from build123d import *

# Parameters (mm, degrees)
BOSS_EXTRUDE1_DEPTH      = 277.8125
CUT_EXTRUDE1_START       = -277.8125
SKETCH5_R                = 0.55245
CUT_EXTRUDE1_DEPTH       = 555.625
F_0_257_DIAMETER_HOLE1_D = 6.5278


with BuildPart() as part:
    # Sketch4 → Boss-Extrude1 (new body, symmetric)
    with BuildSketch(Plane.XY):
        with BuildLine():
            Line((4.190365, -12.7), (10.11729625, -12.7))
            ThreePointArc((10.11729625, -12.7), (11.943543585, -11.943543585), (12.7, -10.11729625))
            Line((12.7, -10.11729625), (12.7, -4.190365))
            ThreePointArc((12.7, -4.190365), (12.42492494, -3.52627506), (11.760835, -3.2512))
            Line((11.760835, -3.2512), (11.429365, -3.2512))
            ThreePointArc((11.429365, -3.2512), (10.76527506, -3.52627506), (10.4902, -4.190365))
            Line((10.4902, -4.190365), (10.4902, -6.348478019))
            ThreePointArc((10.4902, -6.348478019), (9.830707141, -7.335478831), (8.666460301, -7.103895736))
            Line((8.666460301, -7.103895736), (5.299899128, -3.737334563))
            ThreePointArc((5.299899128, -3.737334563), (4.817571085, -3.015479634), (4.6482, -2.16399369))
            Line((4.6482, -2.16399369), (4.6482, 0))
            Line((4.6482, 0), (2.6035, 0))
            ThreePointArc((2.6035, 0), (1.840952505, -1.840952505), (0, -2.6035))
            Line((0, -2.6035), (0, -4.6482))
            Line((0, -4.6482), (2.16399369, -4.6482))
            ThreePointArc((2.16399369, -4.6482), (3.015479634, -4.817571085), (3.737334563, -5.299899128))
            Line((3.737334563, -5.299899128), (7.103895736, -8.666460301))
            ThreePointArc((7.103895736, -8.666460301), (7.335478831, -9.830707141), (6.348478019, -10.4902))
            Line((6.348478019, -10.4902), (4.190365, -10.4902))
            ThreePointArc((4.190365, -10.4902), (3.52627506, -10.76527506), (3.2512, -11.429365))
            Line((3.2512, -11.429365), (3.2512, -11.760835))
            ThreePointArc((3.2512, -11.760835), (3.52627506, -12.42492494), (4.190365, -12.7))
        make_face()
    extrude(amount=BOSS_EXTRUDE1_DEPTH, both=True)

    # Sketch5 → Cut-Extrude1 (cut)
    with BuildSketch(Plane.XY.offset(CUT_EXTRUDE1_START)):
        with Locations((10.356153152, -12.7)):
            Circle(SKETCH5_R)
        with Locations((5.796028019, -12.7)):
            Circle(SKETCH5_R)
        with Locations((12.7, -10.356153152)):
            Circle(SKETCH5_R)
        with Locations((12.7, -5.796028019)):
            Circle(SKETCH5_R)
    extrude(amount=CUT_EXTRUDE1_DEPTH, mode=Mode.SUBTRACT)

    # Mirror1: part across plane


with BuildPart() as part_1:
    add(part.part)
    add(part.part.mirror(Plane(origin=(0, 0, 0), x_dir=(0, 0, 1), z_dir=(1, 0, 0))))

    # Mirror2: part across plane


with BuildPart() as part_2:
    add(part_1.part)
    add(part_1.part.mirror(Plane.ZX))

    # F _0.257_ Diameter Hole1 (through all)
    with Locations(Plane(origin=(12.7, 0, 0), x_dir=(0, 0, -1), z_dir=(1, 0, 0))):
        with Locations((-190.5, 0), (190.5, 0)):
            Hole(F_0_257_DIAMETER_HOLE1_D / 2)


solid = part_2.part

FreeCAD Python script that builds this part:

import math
import FreeCAD as App
import Part
import Sketcher
from FreeCAD import Vector
Q = App.Units.Quantity

doc = App.newDocument("Part")
body = doc.addObject("PartDesign::Body", "Body")

# Sketch on XY plane
sketch1 = body.newObject("Sketcher::SketchObject", "Sketch")
sketch1.AttachmentSupport = (doc.getObject("XY_Plane"), [""])
sketch1.MapMode = "FlatFace"
sketch1.addGeometry(Part.LineSegment(Vector(4.19, -12.7, 0), Vector(10.12, -12.7, 0)), False)
sketch1.addGeometry(Part.ArcOfCircle(Part.Circle(Vector(10.12, -10.12, 0), Vector(0, 0, 1), 2.58), math.radians(-90), math.radians(0)), False)
sketch1.addGeometry(Part.LineSegment(Vector(12.7, -10.12, 0), Vector(12.7, -4.19, 0)), False)
sketch1.addGeometry(Part.ArcOfCircle(Part.Circle(Vector(11.76, -4.19, 0), Vector(0, 0, 1), 0.94), math.radians(0), math.radians(90)), False)
sketch1.addGeometry(Part.LineSegment(Vector(11.76, -3.25, 0), Vector(11.43, -3.25, 0)), False)
sketch1.addGeometry(Part.ArcOfCircle(Part.Circle(Vector(11.43, -4.19, 0), Vector(0, 0, 1), 0.94), math.radians(90), math.radians(180)), False)
sketch1.addGeometry(Part.LineSegment(Vector(10.49, -4.19, 0), Vector(10.49, -6.35, 0)), False)
sketch1.addGeometry(Part.ArcOfCircle(Part.Circle(Vector(9.42, -6.35, 0), Vector(0, 0, 1), 1.07), math.radians(-135), math.radians(0)), False)
sketch1.addGeometry(Part.LineSegment(Vector(8.67, -7.1, 0), Vector(5.3, -3.74, 0)), False)
sketch1.addGeometry(Part.ArcOfCircle(Part.Circle(Vector(6.87, -2.16, 0), Vector(0, 0, 1), 2.23), math.radians(-180), math.radians(-135)), False)
sketch1.addGeometry(Part.LineSegment(Vector(4.65, -2.16, 0), Vector(4.65, 0, 0)), False)
sketch1.addGeometry(Part.LineSegment(Vector(4.65, 0, 0), Vector(2.6, 0, 0)), False)
sketch1.addGeometry(Part.ArcOfCircle(Part.Circle(Vector(0, 0, 0), Vector(0, 0, 1), 2.6), math.radians(-90), math.radians(0)), False)
sketch1.addGeometry(Part.LineSegment(Vector(0, -2.6, 0), Vector(0, -4.65, 0)), False)
sketch1.addGeometry(Part.LineSegment(Vector(0, -4.65, 0), Vector(2.16, -4.65, 0)), False)
sketch1.addGeometry(Part.ArcOfCircle(Part.Circle(Vector(2.16, -6.87, 0), Vector(0, 0, 1), 2.23), math.radians(45), math.radians(90)), False)
sketch1.addGeometry(Part.LineSegment(Vector(3.74, -5.3, 0), Vector(7.1, -8.67, 0)), False)
sketch1.addGeometry(Part.ArcOfCircle(Part.Circle(Vector(6.35, -9.42, 0), Vector(0, 0, 1), 1.07), math.radians(-90), math.radians(45)), False)
sketch1.addGeometry(Part.LineSegment(Vector(6.35, -10.49, 0), Vector(4.19, -10.49, 0)), False)
sketch1.addGeometry(Part.ArcOfCircle(Part.Circle(Vector(4.19, -11.43, 0), Vector(0, 0, 1), 0.94), math.radians(90), math.radians(180)), False)
sketch1.addGeometry(Part.LineSegment(Vector(3.25, -11.43, 0), Vector(3.25, -11.76, 0)), False)
sketch1.addGeometry(Part.ArcOfCircle(Part.Circle(Vector(4.19, -11.76, 0), Vector(0, 0, 1), 0.94), math.radians(-180), math.radians(-90)), False)
sketch1.addConstraint(Sketcher.Constraint("Tangent", 0, 2, 1, 1))
sketch1.addConstraint(Sketcher.Constraint("Tangent", 1, 2, 2, 1))
sketch1.addConstraint(Sketcher.Constraint("Tangent", 2, 2, 3, 1))
sketch1.addConstraint(Sketcher.Constraint("Tangent", 3, 2, 4, 1))
sketch1.addConstraint(Sketcher.Constraint("Tangent", 4, 2, 5, 1))
sketch1.addConstraint(Sketcher.Constraint("Tangent", 5, 2, 6, 1))
sketch1.addConstraint(Sketcher.Constraint("Tangent", 6, 2, 7, 2))
sketch1.addConstraint(Sketcher.Constraint("Tangent", 7, 1, 8, 1))
sketch1.addConstraint(Sketcher.Constraint("Tangent", 8, 2, 9, 2))
sketch1.addConstraint(Sketcher.Constraint("Tangent", 9, 1, 10, 1))
sketch1.addConstraint(Sketcher.Constraint("Coincident", 10, 2, 11, 1))
sketch1.addConstraint(Sketcher.Constraint("Coincident", 11, 2, 12, 2))
sketch1.addConstraint(Sketcher.Constraint("Coincident", 12, 1, 13, 1))
sketch1.addConstraint(Sketcher.Constraint("Coincident", 13, 2, 14, 1))
sketch1.addConstraint(Sketcher.Constraint("Tangent", 14, 2, 15, 2))
sketch1.addConstraint(Sketcher.Constraint("Tangent", 15, 1, 16, 1))
sketch1.addConstraint(Sketcher.Constraint("Tangent", 16, 2, 17, 2))
sketch1.addConstraint(Sketcher.Constraint("Tangent", 17, 1, 18, 1))
sketch1.addConstraint(Sketcher.Constraint("Tangent", 18, 2, 19, 1))
sketch1.addConstraint(Sketcher.Constraint("Tangent", 19, 2, 20, 1))
sketch1.addConstraint(Sketcher.Constraint("Tangent", 20, 2, 21, 1))
sketch1.addConstraint(Sketcher.Constraint("Tangent", 21, 2, 0, 1))
sketch1.addConstraint(Sketcher.Constraint("Horizontal", 0))
sketch1.addConstraint(Sketcher.Constraint("Vertical", 2))
sketch1.addConstraint(Sketcher.Constraint("Horizontal", 4))
sketch1.addConstraint(Sketcher.Constraint("Vertical", 6))
sketch1.addConstraint(Sketcher.Constraint("Vertical", 10))
sketch1.addConstraint(Sketcher.Constraint("Horizontal", 11))
sketch1.addConstraint(Sketcher.Constraint("Vertical", 13))
sketch1.addConstraint(Sketcher.Constraint("Horizontal", 14))
sketch1.addConstraint(Sketcher.Constraint("Horizontal", 18))
sketch1.addConstraint(Sketcher.Constraint("Vertical", 20))
sketch1.addConstraint(Sketcher.Constraint("Coincident", 12, 3, -1, 1))
sketch1.addConstraint(Sketcher.Constraint("Equal", 3, 5))
sketch1.addConstraint(Sketcher.Constraint("Equal", 9, 15))
sketch1.addConstraint(Sketcher.Constraint("Equal", 7, 17))
sketch1.addConstraint(Sketcher.Constraint("Equal", 5, 19))
sketch1.addConstraint(Sketcher.Constraint("Equal", 19, 21))
sketch1.addConstraint(Sketcher.Constraint("PointOnObject", 10, 2, -1))
sketch1.addConstraint(Sketcher.Constraint("PointOnObject", 12, 1, -2))
sketch1.addConstraint(Sketcher.Constraint("Parallel", 8, 16))
sketch1.addConstraint(Sketcher.Constraint("Equal", 0, 2))
sketch1.addConstraint(Sketcher.Constraint("Equal", 18, 6))
sketch1.addConstraint(Sketcher.Constraint("Equal", 14, 10))
sketch1.addConstraint(Sketcher.Constraint("Equal", 11, 13))
sketch1.addConstraint(Sketcher.Constraint("Equal", 4, 20))
sketch1.addConstraint(Sketcher.Constraint("Equal", 8, 16))
sketch1.addConstraint(Sketcher.Constraint("DistanceY", 0, 2, -1, 1, Q("0.5 in")))
sketch1.addConstraint(Sketcher.Constraint("Radius", 9, Q("0.0876 in")))
sketch1.addConstraint(Sketcher.Constraint("Radius", 12, Q("0.1025 in")))
sketch1.addConstraint(Sketcher.Constraint("DistanceX", 9, 1, 5, 2, Q("0.23 in")))
sketch1.addConstraint(Sketcher.Constraint("DistanceX", 11, 2, 11, 1, Q("0.0805 in")))
sketch1.addConstraint(Sketcher.Constraint("DistanceY", 3, 2, -1, 1, Q("0.128 in")))
sketch1.addConstraint(Sketcher.Constraint("Radius", 7, Q("1.068322 mm")))
sketch1.addConstraint(Sketcher.Constraint("DistanceX", 17, 3, 7, 3, Q("0.121 in")))
sketch1.addConstraint(Sketcher.Constraint("Radius", 1, Q("2.582704 mm")))
sketch1.addConstraint(Sketcher.Constraint("Radius", 3, Q("0.939165 mm")))
pad1 = body.newObject("PartDesign::Pad", "Pad")
pad1.Profile = sketch1
pad1.Length = Q("21.875 in")
pad1.Midplane = True

# Sketch on XY plane
sketch2 = body.newObject("Sketcher::SketchObject", "Sketch001")
sketch2.AttachmentSupport = (doc.getObject("XY_Plane"), [""])
sketch2.MapMode = "FlatFace"
sketch2.AttachmentOffset = App.Placement(Vector(0, 0, -10.9375 * 25.4), App.Rotation())
sketch2.addGeometry(Part.Circle(Vector(10.4, -12.7, 0), Vector(0, 0, 1), 0.6), False)
sketch2.addGeometry(Part.Circle(Vector(5.8, -12.7, 0), Vector(0, 0, 1), 0.6), False)
sketch2.addGeometry(Part.Circle(Vector(12.7, -10.4, 0), Vector(0, 0, 1), 0.6), False)
sketch2.addGeometry(Part.Circle(Vector(12.7, -5.8, 0), Vector(0, 0, 1), 0.6), False)
sketch2.addConstraint(Sketcher.Constraint("Equal", 0, 1))
sketch2.addConstraint(Sketcher.Constraint("Equal", 1, 2))
sketch2.addConstraint(Sketcher.Constraint("Equal", 2, 3))
sketch2.addConstraint(Sketcher.Constraint("Horizontal", 0, 3, 1, 3))
sketch2.addConstraint(Sketcher.Constraint("Vertical", 2, 3, 3, 3))
sketch2.addConstraint(Sketcher.Constraint("Diameter", 0, Q("0.0435 in")))
sketch2.addConstraint(Sketcher.Constraint("DistanceY", 0, 3, -1, 1, Q("0.5 in")))
sketch2.addConstraint(Sketcher.Constraint("DistanceX", -1, 1, 2, 3, Q("0.5 in")))
sketch2.addConstraint(Sketcher.Constraint("DistanceX", -1, 1, 1, 3, Q("5.796028 mm")))
sketch2.addConstraint(Sketcher.Constraint("DistanceY", 3, 3, -1, 1, Q("5.796028 mm")))
sketch2.addConstraint(Sketcher.Constraint("DistanceX", -1, 1, 0, 3, Q("10.356153 mm")))
sketch2.addConstraint(Sketcher.Constraint("DistanceY", 2, 3, -1, 1, Q("10.356153 mm")))
pocket1 = body.newObject("PartDesign::Pocket", "Pocket")
pocket1.Profile = sketch2
pocket1.Length = Q("21.875 in")
pocket1.Reversed = True
body2 = doc.addObject("PartDesign::Body", "Body001")
doc.recompute()

body2.BaseFeature = body
doc.recompute()

mirroring = doc.addObject("Part::Mirroring", "Mirroring")
mirroring.Source = body
mirroring.Base = Vector(0, 0, 0)
mirroring.Normal = Vector(1, 0, 0)
body3 = doc.addObject("PartDesign::Body", "Body002")
body3.BaseFeature = mirroring
boolean = body2.newObject("PartDesign::Boolean", "Boolean")
boolean.Type = "Fuse"
boolean.addObjects([body3])
doc.recompute()
body4 = doc.addObject("PartDesign::Body", "Body003")
doc.recompute()

body4.BaseFeature = body2
doc.recompute()

mirroring2 = doc.addObject("Part::Mirroring", "Mirroring001")
mirroring2.Source = body2
mirroring2.Base = Vector(0, 0, 0)
mirroring2.Normal = Vector(0, 1, 0)
body5 = doc.addObject("PartDesign::Body", "Body004")
body5.BaseFeature = mirroring2
boolean2 = body4.newObject("PartDesign::Boolean", "Boolean001")
boolean2.Type = "Fuse"
boolean2.addObjects([body5])
doc.recompute()

# Sketch on YZ plane
sketch3 = body4.newObject("Sketcher::SketchObject", "Sketch002")
sketch3.AttachmentSupport = (doc.getObject("YZ_Plane003"), [""])
sketch3.MapMode = "FlatFace"
sketch3.AttachmentOffset = App.Placement(Vector(0, 0, 0.5 * 25.4), App.Rotation())
sketch3.addGeometry(Part.Circle(Vector(0, 190.5, 0), Vector(0, 0, 1), 3.3), False)
sketch3.addGeometry(Part.Circle(Vector(0, -190.5, 0), Vector(0, 0, 1), 3.3), False)
sketch3.addConstraint(Sketcher.Constraint("Equal", 0, 1))
sketch3.addConstraint(Sketcher.Constraint("Symmetric", 0, 3, 1, 3, -1, 1))
sketch3.addConstraint(Sketcher.Constraint("PointOnObject", 0, 3, -2))
sketch3.addConstraint(Sketcher.Constraint("Diameter", 0, Q("0.257 in")))
sketch3.addConstraint(Sketcher.Constraint("DistanceY", 1, 3, 0, 3, Q("15 in")))
doc.recompute()
hole = body4.newObject("PartDesign::Hole", "Hole")
hole.Profile = sketch3
hole.ThreadType = "None"
hole.Diameter = Q("0.257 in")
hole.DepthType = "ThroughAll"
mirroring.Visibility = False
mirroring2.Visibility = False

doc.recompute()
